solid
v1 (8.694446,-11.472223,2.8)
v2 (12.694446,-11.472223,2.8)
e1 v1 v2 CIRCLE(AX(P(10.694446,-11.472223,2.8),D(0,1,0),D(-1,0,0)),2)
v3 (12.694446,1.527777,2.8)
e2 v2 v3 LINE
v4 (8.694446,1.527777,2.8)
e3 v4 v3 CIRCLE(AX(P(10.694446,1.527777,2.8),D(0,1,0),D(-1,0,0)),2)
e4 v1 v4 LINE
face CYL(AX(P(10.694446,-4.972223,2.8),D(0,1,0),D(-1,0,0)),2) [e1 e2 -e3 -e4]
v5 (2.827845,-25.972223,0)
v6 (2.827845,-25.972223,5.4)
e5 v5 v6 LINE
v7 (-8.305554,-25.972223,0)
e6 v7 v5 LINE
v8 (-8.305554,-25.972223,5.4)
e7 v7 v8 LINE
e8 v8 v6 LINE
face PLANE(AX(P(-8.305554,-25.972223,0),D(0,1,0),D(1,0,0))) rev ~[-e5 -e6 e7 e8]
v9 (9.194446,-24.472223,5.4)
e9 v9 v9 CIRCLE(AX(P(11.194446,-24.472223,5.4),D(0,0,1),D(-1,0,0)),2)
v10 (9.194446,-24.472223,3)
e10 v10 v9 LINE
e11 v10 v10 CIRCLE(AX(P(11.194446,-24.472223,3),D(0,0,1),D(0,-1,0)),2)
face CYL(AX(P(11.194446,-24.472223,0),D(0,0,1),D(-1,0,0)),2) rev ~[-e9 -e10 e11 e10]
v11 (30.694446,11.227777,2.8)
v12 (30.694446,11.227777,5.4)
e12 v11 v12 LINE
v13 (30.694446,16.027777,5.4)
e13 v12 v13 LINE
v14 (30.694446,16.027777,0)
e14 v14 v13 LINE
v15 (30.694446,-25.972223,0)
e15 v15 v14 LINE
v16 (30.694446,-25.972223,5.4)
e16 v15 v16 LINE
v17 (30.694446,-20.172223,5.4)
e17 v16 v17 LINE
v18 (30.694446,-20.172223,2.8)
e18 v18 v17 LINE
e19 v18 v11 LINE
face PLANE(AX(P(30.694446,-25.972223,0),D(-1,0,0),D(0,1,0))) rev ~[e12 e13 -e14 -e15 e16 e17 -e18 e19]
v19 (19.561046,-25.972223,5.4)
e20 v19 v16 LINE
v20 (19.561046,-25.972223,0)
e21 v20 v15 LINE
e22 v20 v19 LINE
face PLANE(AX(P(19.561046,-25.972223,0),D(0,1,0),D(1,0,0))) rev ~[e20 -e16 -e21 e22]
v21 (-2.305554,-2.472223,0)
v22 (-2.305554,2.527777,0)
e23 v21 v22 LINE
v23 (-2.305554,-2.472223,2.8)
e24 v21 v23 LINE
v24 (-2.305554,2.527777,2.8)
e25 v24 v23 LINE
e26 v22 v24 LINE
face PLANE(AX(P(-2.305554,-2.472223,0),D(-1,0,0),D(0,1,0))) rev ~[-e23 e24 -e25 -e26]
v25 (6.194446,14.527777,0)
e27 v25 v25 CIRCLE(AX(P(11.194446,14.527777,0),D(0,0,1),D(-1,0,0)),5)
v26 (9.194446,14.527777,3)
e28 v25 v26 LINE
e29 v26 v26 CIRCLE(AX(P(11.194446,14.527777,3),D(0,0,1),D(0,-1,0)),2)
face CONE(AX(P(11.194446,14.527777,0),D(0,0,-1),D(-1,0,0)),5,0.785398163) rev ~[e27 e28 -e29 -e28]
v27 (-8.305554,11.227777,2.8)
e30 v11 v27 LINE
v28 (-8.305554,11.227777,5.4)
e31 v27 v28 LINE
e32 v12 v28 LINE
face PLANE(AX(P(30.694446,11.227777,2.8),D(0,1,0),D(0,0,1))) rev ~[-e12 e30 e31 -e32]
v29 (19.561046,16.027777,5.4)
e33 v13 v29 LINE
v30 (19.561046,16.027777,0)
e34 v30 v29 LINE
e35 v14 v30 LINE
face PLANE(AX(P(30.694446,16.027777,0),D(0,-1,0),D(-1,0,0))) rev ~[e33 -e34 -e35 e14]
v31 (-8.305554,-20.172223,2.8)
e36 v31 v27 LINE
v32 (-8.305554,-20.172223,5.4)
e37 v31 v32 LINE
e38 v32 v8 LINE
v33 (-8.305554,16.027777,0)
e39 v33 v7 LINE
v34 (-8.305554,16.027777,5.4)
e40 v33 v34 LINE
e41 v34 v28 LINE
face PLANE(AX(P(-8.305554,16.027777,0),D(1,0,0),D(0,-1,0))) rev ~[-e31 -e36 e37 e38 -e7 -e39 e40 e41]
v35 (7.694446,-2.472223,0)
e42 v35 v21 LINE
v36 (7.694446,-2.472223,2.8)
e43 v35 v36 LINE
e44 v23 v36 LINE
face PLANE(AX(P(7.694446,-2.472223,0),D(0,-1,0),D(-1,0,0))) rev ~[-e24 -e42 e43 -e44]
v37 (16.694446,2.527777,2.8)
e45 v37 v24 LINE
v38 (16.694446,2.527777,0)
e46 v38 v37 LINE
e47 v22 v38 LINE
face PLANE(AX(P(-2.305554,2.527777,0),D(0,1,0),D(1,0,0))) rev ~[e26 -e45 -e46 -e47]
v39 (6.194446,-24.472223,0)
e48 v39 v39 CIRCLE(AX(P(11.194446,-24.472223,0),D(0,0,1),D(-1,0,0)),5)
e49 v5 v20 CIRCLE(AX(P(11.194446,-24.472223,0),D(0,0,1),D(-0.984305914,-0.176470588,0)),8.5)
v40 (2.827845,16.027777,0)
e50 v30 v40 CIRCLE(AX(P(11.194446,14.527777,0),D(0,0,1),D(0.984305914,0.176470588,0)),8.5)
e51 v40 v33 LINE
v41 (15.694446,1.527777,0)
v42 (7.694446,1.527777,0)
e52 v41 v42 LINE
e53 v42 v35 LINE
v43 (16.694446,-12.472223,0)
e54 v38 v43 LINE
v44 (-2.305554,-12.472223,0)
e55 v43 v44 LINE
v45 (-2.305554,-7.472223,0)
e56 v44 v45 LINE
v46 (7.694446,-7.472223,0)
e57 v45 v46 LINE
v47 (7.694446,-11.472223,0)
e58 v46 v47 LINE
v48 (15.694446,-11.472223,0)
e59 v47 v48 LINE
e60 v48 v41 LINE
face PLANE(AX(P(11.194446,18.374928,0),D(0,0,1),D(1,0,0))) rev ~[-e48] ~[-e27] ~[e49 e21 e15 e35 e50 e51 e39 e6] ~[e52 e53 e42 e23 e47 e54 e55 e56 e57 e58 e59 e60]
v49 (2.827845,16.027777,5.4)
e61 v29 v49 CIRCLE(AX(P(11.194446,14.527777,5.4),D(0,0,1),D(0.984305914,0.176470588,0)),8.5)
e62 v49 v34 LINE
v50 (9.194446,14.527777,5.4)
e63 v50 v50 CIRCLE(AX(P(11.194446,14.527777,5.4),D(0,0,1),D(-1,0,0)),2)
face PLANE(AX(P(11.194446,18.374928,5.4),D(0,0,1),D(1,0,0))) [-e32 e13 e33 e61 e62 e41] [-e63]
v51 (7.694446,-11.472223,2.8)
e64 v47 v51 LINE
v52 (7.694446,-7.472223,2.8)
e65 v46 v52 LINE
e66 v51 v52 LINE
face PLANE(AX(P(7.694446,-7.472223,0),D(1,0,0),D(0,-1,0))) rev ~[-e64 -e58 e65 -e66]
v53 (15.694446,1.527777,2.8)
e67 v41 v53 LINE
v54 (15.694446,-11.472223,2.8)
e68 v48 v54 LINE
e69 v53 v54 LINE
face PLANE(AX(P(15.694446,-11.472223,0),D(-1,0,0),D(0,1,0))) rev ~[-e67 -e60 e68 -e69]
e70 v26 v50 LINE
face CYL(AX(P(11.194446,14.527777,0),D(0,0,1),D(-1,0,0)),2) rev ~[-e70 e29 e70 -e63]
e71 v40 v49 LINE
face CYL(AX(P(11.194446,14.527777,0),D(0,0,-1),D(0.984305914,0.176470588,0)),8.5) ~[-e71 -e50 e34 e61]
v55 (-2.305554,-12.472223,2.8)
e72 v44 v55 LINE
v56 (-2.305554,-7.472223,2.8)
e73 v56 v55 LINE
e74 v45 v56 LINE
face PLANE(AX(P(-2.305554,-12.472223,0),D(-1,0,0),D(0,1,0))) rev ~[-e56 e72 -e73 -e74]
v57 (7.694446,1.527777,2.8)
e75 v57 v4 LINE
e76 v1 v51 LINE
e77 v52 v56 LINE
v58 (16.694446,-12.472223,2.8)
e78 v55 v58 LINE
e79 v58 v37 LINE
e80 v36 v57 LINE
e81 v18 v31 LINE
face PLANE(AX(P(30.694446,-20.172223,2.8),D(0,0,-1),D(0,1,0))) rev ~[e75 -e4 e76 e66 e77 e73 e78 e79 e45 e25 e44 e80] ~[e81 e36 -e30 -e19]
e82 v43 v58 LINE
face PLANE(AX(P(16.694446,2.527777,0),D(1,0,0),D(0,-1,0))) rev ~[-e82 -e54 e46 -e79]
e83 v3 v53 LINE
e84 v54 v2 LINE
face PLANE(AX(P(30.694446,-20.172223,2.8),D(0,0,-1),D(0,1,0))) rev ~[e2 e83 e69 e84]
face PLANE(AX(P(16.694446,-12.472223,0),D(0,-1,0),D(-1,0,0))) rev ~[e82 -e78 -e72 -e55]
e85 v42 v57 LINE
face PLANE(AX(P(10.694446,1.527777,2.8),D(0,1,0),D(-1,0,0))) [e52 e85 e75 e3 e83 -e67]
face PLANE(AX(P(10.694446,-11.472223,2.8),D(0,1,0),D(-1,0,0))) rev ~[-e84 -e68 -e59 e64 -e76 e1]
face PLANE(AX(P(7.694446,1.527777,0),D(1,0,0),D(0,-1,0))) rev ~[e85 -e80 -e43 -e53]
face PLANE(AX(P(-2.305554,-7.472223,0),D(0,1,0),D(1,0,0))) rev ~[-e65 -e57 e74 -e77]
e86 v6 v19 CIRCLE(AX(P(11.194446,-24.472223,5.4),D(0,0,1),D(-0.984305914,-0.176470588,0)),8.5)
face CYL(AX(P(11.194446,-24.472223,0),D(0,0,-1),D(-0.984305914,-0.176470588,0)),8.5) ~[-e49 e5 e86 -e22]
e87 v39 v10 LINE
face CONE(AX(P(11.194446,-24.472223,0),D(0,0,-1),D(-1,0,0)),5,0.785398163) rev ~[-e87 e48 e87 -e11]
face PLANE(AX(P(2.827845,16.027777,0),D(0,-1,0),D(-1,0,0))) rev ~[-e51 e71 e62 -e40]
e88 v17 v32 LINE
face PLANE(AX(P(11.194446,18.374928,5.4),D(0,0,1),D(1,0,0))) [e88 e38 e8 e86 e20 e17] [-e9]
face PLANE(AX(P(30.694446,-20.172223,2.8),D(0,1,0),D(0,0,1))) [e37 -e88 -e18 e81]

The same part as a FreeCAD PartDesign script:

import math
import FreeCAD as App
import Part
import Sketcher
from FreeCAD import Vector

doc = App.newDocument("Part")
body = doc.addObject("PartDesign::Body", "Body")

# Sketch on XY plane
sketch1 = body.newObject("Sketcher::SketchObject", "Sketch")
sketch1.AttachmentSupport = (doc.getObject("XY_Plane"), [""])
sketch1.MapMode = "FlatFace"
sketch1.addGeometry([
    Part.ArcOfCircle(Part.Circle(Vector(11.194446, 14.527777, 0), Vector(0, 0, 1), 8.5), math.radians(10.164249), math.radians(169.835751)),  # 0
    Part.LineSegment(Vector(2.827845, 16.027777, 0), Vector(-8.305554, 16.027777, 0)),  # 1
    Part.LineSegment(Vector(-8.305554, 16.027777, 0), Vector(-8.305554, -25.972223, 0)),  # 2
    Part.LineSegment(Vector(-8.305554, -25.972223, 0), Vector(2.827845, -25.972223, 0)),  # 3
    Part.ArcOfCircle(Part.Circle(Vector(11.194446, -24.472223, 0), Vector(0, 0, 1), 8.5), math.radians(-169.835751), math.radians(-10.164249)),  # 4
    Part.LineSegment(Vector(19.561046, -25.972223, 0), Vector(30.694446, -25.972223, 0)),  # 5
    Part.LineSegment(Vector(30.694446, -25.972223, 0), Vector(30.694446, 16.027777, 0)),  # 6
    Part.LineSegment(Vector(30.694446, 16.027777, 0), Vector(19.561046, 16.027777, 0)),  # 7
    Part.LineSegment(Vector(16.694446, -12.472223, 0), Vector(-2.305554, -12.472223, 0)),  # 8
    Part.LineSegment(Vector(-2.305554, -12.472223, 0), Vector(-2.305554, -7.472223, 0)),  # 9
    Part.LineSegment(Vector(-2.305554, -7.472223, 0), Vector(7.694446, -7.472223, 0)),  # 10
    Part.LineSegment(Vector(7.694446, -7.472223, 0), Vector(7.694446, -11.472223, 0)),  # 11
    Part.LineSegment(Vector(7.694446, -11.472223, 0), Vector(15.694446, -11.472223, 0)),  # 12
    Part.LineSegment(Vector(15.694446, -11.472223, 0), Vector(15.694446, 1.527777, 0)),  # 13
    Part.LineSegment(Vector(15.694446, 1.527777, 0), Vector(7.694446, 1.527777, 0)),  # 14
    Part.LineSegment(Vector(7.694446, 1.527777, 0), Vector(7.694446, -2.472223, 0)),  # 15
    Part.LineSegment(Vector(7.694446, -2.472223, 0), Vector(-2.305554, -2.472223, 0)),  # 16
    Part.LineSegment(Vector(-2.305554, -2.472223, 0), Vector(-2.305554, 2.527777, 0)),  # 17
    Part.LineSegment(Vector(-2.305554, 2.527777, 0), Vector(16.694446, 2.527777, 0)),  # 18
    Part.LineSegment(Vector(16.694446, 2.527777, 0), Vector(16.694446, -12.472223, 0)),  # 19
], False)
sketch1.addConstraint([
    Sketcher.Constraint("Coincident", 0, 2, 1, 1),
    Sketcher.Constraint("Coincident", 1, 2, 2, 1),
    Sketcher.Constraint("Coincident", 2, 2, 3, 1),
    Sketcher.Constraint("Coincident", 3, 2, 4, 1),
    Sketcher.Constraint("Coincident", 4, 2, 5, 1),
    Sketcher.Constraint("Coincident", 5, 2, 6, 1),
    Sketcher.Constraint("Coincident", 6, 2, 7, 1),
    Sketcher.Constraint("Coincident", 7, 2, 0, 1),
    Sketcher.Constraint("Coincident", 8, 2, 9, 1),
    Sketcher.Constraint("Coincident", 9, 2, 10, 1),
    Sketcher.Constraint("Coincident", 10, 2, 11, 1),
    Sketcher.Constraint("Coincident", 11, 2, 12, 1),
    Sketcher.Constraint("Coincident", 12, 2, 13, 1),
    Sketcher.Constraint("Coincident", 13, 2, 14, 1),
    Sketcher.Constraint("Coincident", 14, 2, 15, 1),
    Sketcher.Constraint("Coincident", 15, 2, 16, 1),
    Sketcher.Constraint("Coincident", 16, 2, 17, 1),
    Sketcher.Constraint("Coincident", 17, 2, 18, 1),
    Sketcher.Constraint("Coincident", 18, 2, 19, 1),
    Sketcher.Constraint("Coincident", 19, 2, 8, 1),
    Sketcher.Constraint("Horizontal", 1),
    Sketcher.Constraint("Vertical", 2),
    Sketcher.Constraint("Horizontal", 3),
    Sketcher.Constraint("Horizontal", 5),
    Sketcher.Constraint("Vertical", 6),
    Sketcher.Constraint("Horizontal", 7),
    Sketcher.Constraint("Horizontal", 8),
    Sketcher.Constraint("Vertical", 9),
    Sketcher.Constraint("Horizontal", 10),
    Sketcher.Constraint("Vertical", 11),
    Sketcher.Constraint("Horizontal", 12),
    Sketcher.Constraint("Vertical", 13),
    Sketcher.Constraint("Horizontal", 14),
    Sketcher.Constraint("Vertical", 15),
    Sketcher.Constraint("Horizontal", 16),
    Sketcher.Constraint("Vertical", 17),
    Sketcher.Constraint("Horizontal", 18),
    Sketcher.Constraint("Vertical", 19),
    Sketcher.Constraint("Equal", 0, 4),
    Sketcher.Constraint("Horizontal", 3, 2, 4, 2),
    Sketcher.Constraint("Horizontal", 1, 2, 6, 2),
    Sketcher.Constraint("Vertical", 0, 3, 4, 3),
    Sketcher.Constraint("Vertical", 0, 2, 3, 2),
    Sketcher.Constraint("Vertical", 11, 2, 14, 2),
    Sketcher.Constraint("Vertical", 9, 2, 16, 2),
    Sketcher.Constraint("Equal", 3, 5),
    Sketcher.Constraint("Equal", 11, 15),
    Sketcher.Constraint("Equal", 9, 17),
    Sketcher.Constraint("Radius", 0, 8.5),
    Sketcher.Constraint("DistanceX", 8, 2, 8, 1, 19.0),
    Sketcher.Constraint("DistanceX", 10, 1, 10, 2, 10.0),
    Sketcher.Constraint("DistanceX", 12, 1, 12, 2, 8.0),
    Sketcher.Constraint("DistanceY", 2, 2, 2, 1, 42.0),
    Sketcher.Constraint("DistanceY", 9, 1, 9, 2, 5.0),
    Sketcher.Constraint("DistanceY", 11, 2, 11, 1, 4.0),
    Sketcher.Constraint("DistanceY", 13, 1, 13, 2, 13.0),
    Sketcher.Constraint("DistanceY", 4, 3, 0, 3, 39.0),
    Sketcher.Constraint("DistanceX", 2, 2, 5, 2, 39.0),
    Sketcher.Constraint("DistanceX", 2, 2, 8, 2, 6.0),
    Sketcher.Constraint("DistanceY", 4, 3, 8, 2, 12.0),
    Sketcher.Constraint("DistanceX", -1, 1, 0, 3, 11.194446),
    Sketcher.Constraint("DistanceY", -1, 1, 0, 3, 14.527777),
])
pad1 = body.newObject("PartDesign::Pad", "Pad")
pad1.Profile = sketch1
pad1.Length = 5.4

# Sketch on YZ plane
sketch2 = body.newObject("Sketcher::SketchObject", "Sketch001")
sketch2.AttachmentSupport = (doc.getObject("YZ_Plane"), [""])
sketch2.MapMode = "FlatFace"
sketch2.AttachmentOffset = App.Placement(Vector(0, 0, 30.694446), App.Rotation())
sketch2.addGeometry([
    Part.LineSegment(Vector(-20.172223, 5.4, 0), Vector(-20.172223, 2.8, 0)),
    Part.LineSegment(Vector(-20.172223, 2.8, 0), Vector(11.227777, 2.8, 0)),
    Part.LineSegment(Vector(11.227777, 2.8, 0), Vector(11.227777, 5.4, 0)),
    Part.LineSegment(Vector(11.227777, 5.4, 0), Vector(-20.172223, 5.4, 0)),
], False)
sketch2.addConstraint([
    Sketcher.Constraint("Coincident", 0, 2, 1, 1),
    Sketcher.Constraint("Coincident", 1, 2, 2, 1),
    Sketcher.Constraint("Coincident", 2, 2, 3, 1),
    Sketcher.Constraint("Coincident", 3, 2, 0, 1),
    Sketcher.Constraint("Vertical", 0),
    Sketcher.Constraint("Horizontal", 1),
    Sketcher.Constraint("Vertical", 2),
    Sketcher.Constraint("Horizontal", 3),
    Sketcher.Constraint("DistanceX", 1, 1, 1, 2, 31.4),
    Sketcher.Constraint("DistanceY", 0, 2, 0, 1, 2.6),
    Sketcher.Constraint("DistanceY", -1, 1, 0, 2, 2.8),
    Sketcher.Constraint("DistanceX", 0, 2, -1, 1, 20.172223),
])
pocket1 = body.newObject("PartDesign::Pocket", "Pocket")
pocket1.Profile = sketch2
pocket1.Length = 40

# Sketch on XY plane
sketch3 = body.newObject("Sketcher::SketchObject", "Sketch002")
sketch3.AttachmentSupport = (doc.getObject("XY_Plane"), [""])
sketch3.MapMode = "FlatFace"
sketch3.AttachmentOffset = App.Placement(Vector(0, 0, 2.8), App.Rotation())
sketch3.addGeometry([
    Part.LineSegment(Vector(8.694446, 1.527777, 0), Vector(8.694446, -11.472223, 0)),
    Part.LineSegment(Vector(8.694446, -11.472223, 0), Vector(10.694446, -11.472223, 0)),
    Part.LineSegment(Vector(10.694446, -11.472223, 0), Vector(10.694446, 1.527777, 0)),
    Part.LineSegment(Vector(10.694446, 1.527777, 0), Vector(8.694446, 1.527777, 0)),
], False)
sketch3.addGeometry(Part.LineSegment(Vector(10.694446, -11.472223, 0), Vector(10.694446, 1.527777, 0)), True)  # axis
sketch3.addConstraint([
    Sketcher.Constraint("Coincident", 0, 2, 1, 1),
    Sketcher.Constraint("Coincident", 1, 2, 2, 1),
    Sketcher.Constraint("Coincident", 2, 2, 3, 1),
    Sketcher.Constraint("Coincident", 3, 2, 0, 1),
    Sketcher.Constraint("Vertical", 0),
    Sketcher.Constraint("Horizontal", 1),
    Sketcher.Constraint("Vertical", 2),
    Sketcher.Constraint("Horizontal", 3),
    Sketcher.Constraint("Vertical", 4),
    Sketcher.Constraint("Coincident", 4, 1, 1, 2),
    Sketcher.Constraint("Horizontal", 3, 2, 4, 2),
    Sketcher.Constraint("DistanceX", 1, 1, 1, 2, 2.0),
    Sketcher.Constraint("DistanceY", 0, 2, 0, 1, 13.0),
    Sketcher.Constraint("DistanceX", -1, 1, 0, 2, 8.694446),
    Sketcher.Constraint("DistanceY", 0, 2, -1, 1, 11.472223),
])
revolution = body.newObject("PartDesign::Revolution", "Revolution")
revolution.Profile = sketch3
revolution.ReferenceAxis = (sketch3, ["Axis0"])
revolution.Angle = 360

# Sketch on XY plane
sketch4 = body.newObject("Sketcher::SketchObject", "Sketch003")
sketch4.AttachmentSupport = (doc.getObject("XY_Plane"), [""])
sketch4.MapMode = "FlatFace"
sketch4.addGeometry([
    Part.Circle(Vector(11.194446, -24.472223, 0), Vector(0, 0, 1), 2),
    Part.Circle(Vector(11.194446, 14.527777, 0), Vector(0, 0, 1), 2),
], False)
sketch4.addConstraint([
    Sketcher.Constraint("Equal", 0, 1),
    Sketcher.Constraint("Vertical", 0, 3, 1, 3),
    Sketcher.Constraint("Diameter", 0, 4.0),
    Sketcher.Constraint("DistanceY", 0, 3, 1, 3, 39.0),
    Sketcher.Constraint("DistanceX", -1, 1, 0, 3, 11.194446),
    Sketcher.Constraint("DistanceY", 0, 3, -1, 1, 24.472223),
])
doc.recompute()
hole = body.newObject("PartDesign::Hole", "Hole")
hole.Profile = sketch4
hole.ThreadType = "None"
hole.Diameter = 4
hole.DepthType = "ThroughAll"
hole.HoleCutType = "Countersink"
hole.HoleCutDiameter = 10
hole.HoleCutCountersinkAngle = 90
hole.Reversed = True

doc.recompute()
